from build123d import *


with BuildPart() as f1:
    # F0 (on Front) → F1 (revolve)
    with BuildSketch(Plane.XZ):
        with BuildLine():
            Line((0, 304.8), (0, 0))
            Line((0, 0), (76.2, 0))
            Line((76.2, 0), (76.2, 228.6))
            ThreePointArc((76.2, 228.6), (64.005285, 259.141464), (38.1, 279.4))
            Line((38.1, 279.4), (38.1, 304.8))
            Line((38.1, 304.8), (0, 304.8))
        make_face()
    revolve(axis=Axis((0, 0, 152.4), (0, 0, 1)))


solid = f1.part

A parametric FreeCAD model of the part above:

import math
import FreeCAD as App
import Part
import Sketcher
Q = App.Units.Quantity

doc = App.newDocument("Part")
body = doc.addObject("PartDesign::Body", "Body")

# Sketch on XZ plane
sketch1 = body.newObject("Sketcher::SketchObject", "Sketch")
sketch1.AttachmentSupport = (doc.getObject("XZ_Plane"), [""])
sketch1.MapMode = "FlatFace"
sketch1.addGeometry([
    Part.LineSegment(App.Vector(0, 305, 0), App.Vector(0, 0, 0)),  # 0
    Part.LineSegment(App.Vector(0, 0, 0), App.Vector(76, 0, 0)),  # 1
    Part.LineSegment(App.Vector(76, 0, 0), App.Vector(76, 229, 0)),  # 2
    Part.ArcOfCircle(Part.Circle(App.Vector(14, 221, 0), App.Vector(0, 0, 1), 63), math.radians(7), math.radians(67)),  # 3
    Part.LineSegment(App.Vector(38, 279, 0), App.Vector(38, 305, 0)),  # 4
    Part.LineSegment(App.Vector(38, 305, 0), App.Vector(0, 305, 0)),  # 5
], False)
sketch1.addConstraint([
    Sketcher.Constraint("Coincident", 0, 2, 1, 1),
    Sketcher.Constraint("Coincident", 1, 2, 2, 1),
    Sketcher.Constraint("Coincident", 2, 2, 3, 1),
    Sketcher.Constraint("Coincident", 3, 2, 4, 1),
    Sketcher.Constraint("Coincident", 4, 2, 5, 1),
    Sketcher.Constraint("Coincident", 5, 2, 0, 1),
    Sketcher.Constraint("Vertical", 0),
    Sketcher.Constraint("Horizontal", 1),
    Sketcher.Constraint("Vertical", 2),
    Sketcher.Constraint("Vertical", 4),
    Sketcher.Constraint("Horizontal", 5),
    Sketcher.Constraint("Coincident", 0, 2, -1, 1),
    Sketcher.Constraint("DistanceX", 1, 1, 1, 2, Q("3 in")),
    Sketcher.Constraint("DistanceY", 0, 2, 0, 1, Q("12 in")),
    Sketcher.Constraint("DistanceY", 2, 1, 2, 2, Q("9 in")),
    Sketcher.Constraint("DistanceY", 4, 1, 4, 2, Q("1 in")),
    Sketcher.Constraint("DistanceX", 5, 2, 5, 1, Q("1.5 in")),
    Sketcher.Constraint("Radius", 3, Q("63.104134 mm")),
])
revolution = body.newObject("PartDesign::Revolution", "Revolution")
revolution.Profile = sketch1
revolution.ReferenceAxis = (sketch1, ["V_Axis"])
revolution.Angle = 360

doc.recompute()
